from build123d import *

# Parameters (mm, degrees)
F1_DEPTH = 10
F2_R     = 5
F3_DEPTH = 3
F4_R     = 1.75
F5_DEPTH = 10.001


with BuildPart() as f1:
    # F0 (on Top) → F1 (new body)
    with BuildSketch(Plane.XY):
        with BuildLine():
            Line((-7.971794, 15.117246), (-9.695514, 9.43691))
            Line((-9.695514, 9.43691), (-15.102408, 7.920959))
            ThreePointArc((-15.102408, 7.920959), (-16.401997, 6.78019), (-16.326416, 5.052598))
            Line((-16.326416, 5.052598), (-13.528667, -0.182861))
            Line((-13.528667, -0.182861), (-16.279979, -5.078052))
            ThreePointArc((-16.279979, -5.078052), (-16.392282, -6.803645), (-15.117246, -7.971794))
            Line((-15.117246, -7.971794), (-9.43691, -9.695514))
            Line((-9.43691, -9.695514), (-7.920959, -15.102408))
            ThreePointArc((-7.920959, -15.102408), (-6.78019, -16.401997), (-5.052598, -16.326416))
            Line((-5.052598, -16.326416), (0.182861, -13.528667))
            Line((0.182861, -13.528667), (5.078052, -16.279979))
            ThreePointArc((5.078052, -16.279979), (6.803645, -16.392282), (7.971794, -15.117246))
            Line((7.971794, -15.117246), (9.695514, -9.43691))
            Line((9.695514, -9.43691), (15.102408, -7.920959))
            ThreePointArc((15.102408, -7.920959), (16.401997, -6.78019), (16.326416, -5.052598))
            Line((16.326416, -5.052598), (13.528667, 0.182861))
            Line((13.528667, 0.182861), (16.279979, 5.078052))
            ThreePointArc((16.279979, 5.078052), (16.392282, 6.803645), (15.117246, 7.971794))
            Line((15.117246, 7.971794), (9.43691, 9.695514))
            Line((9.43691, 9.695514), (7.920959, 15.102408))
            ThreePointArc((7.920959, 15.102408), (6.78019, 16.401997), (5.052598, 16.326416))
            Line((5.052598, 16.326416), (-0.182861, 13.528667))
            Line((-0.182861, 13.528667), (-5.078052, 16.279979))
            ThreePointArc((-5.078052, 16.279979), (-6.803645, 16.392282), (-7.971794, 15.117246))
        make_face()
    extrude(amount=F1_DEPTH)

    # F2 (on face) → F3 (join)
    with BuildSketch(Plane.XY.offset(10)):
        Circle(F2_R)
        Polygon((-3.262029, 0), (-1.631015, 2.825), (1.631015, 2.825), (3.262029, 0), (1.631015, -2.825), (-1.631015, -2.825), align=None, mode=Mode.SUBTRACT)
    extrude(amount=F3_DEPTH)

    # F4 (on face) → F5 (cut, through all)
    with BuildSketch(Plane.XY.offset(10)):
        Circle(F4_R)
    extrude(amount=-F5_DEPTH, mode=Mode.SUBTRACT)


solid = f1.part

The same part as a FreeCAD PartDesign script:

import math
import FreeCAD as App
import Part
import Sketcher
from FreeCAD import Vector
Q = App.Units.Quantity

doc = App.newDocument("Part")
params = doc.addObject("Spreadsheet::Sheet", "Params")
for row, (alias, value) in enumerate([
    ("sketch1_radius", "2 mm"),
    ("pad1_length", "10 mm"),
    ("sketch2_diameter", "10 mm"),
    ("pad2_length", "3 mm"),
    ("sketch3_diameter", "3.5 mm"),
], start=1):
    params.set(f"A{row}", alias)
    params.set(f"B{row}", "=" + value)
    params.setAlias(f"B{row}", alias)

body = doc.addObject("PartDesign::Body", "Body")

# Sketch on XY plane
sketch1 = doc.addObject("Sketcher::SketchObject", "Sketch")
body.addObject(sketch1)
sketch1.AttachmentSupport = (doc.XY_Plane, [""])
sketch1.MapMode = "FlatFace"
sketch1.addGeometry(Part.LineSegment(Vector(-8, 15.1, 0), Vector(-9.7, 9.4, 0)), False)
sketch1.addGeometry(Part.LineSegment(Vector(-9.7, 9.4, 0), Vector(-15.1, 7.9, 0)), False)
sketch1.addGeometry(Part.ArcOfCircle(Part.Circle(Vector(-14.6, 6, 0), Vector(0, 0, 1), 2), math.radians(106), math.radians(208)), False)
sketch1.addGeometry(Part.LineSegment(Vector(-16.3, 5.1, 0), Vector(-13.5, -0.2, 0)), False)
sketch1.addGeometry(Part.LineSegment(Vector(-13.5, -0.2, 0), Vector(-16.3, -5.1, 0)), False)
sketch1.addGeometry(Part.ArcOfCircle(Part.Circle(Vector(-14.5, -6.1, 0), Vector(0, 0, 1), 2), math.radians(151), math.radians(253)), False)
sketch1.addGeometry(Part.LineSegment(Vector(-15.1, -8, 0), Vector(-9.4, -9.7, 0)), False)
sketch1.addGeometry(Part.LineSegment(Vector(-9.4, -9.7, 0), Vector(-7.9, -15.1, 0)), False)
sketch1.addGeometry(Part.ArcOfCircle(Part.Circle(Vector(-6, -14.6, 0), Vector(0, 0, 1), 2), math.radians(-164), math.radians(-62)), False)
sketch1.addGeometry(Part.LineSegment(Vector(-5.1, -16.3, 0), Vector(0.2, -13.5, 0)), False)
sketch1.addGeometry(Part.LineSegment(Vector(0.2, -13.5, 0), Vector(5.1, -16.3, 0)), False)
sketch1.addGeometry(Part.ArcOfCircle(Part.Circle(Vector(6.1, -14.5, 0), Vector(0, 0, 1), 2), math.radians(-119), math.radians(-17)), False)
sketch1.addGeometry(Part.LineSegment(Vector(8, -15.1, 0), Vector(9.7, -9.4, 0)), False)
sketch1.addGeometry(Part.LineSegment(Vector(9.7, -9.4, 0), Vector(15.1, -7.9, 0)), False)
sketch1.addGeometry(Part.ArcOfCircle(Part.Circle(Vector(14.6, -6, 0), Vector(0, 0, 1), 2), math.radians(-74), math.radians(28)), False)
sketch1.addGeometry(Part.LineSegment(Vector(16.3, -5.1, 0), Vector(13.5, 0.2, 0)), False)
sketch1.addGeometry(Part.LineSegment(Vector(13.5, 0.2, 0), Vector(16.3, 5.1, 0)), False)
sketch1.addGeometry(Part.ArcOfCircle(Part.Circle(Vector(14.5, 6.1, 0), Vector(0, 0, 1), 2), math.radians(-29), math.radians(73)), False)
sketch1.addGeometry(Part.LineSegment(Vector(15.1, 8, 0), Vector(9.4, 9.7, 0)), False)
sketch1.addGeometry(Part.LineSegment(Vector(9.4, 9.7, 0), Vector(7.9, 15.1, 0)), False)
sketch1.addGeometry(Part.ArcOfCircle(Part.Circle(Vector(6, 14.6, 0), Vector(0, 0, 1), 2), math.radians(16), math.radians(118)), False)
sketch1.addGeometry(Part.LineSegment(Vector(5.1, 16.3, 0), Vector(-0.2, 13.5, 0)), False)
sketch1.addGeometry(Part.LineSegment(Vector(-0.2, 13.5, 0), Vector(-5.1, 16.3, 0)), False)
sketch1.addGeometry(Part.ArcOfCircle(Part.Circle(Vector(-6.1, 14.5, 0), Vector(0, 0, 1), 2), math.radians(61), math.radians(163)), False)
sketch1.addConstraint(Sketcher.Constraint("Coincident", 0, 2, 1, 1))
sketch1.addConstraint(Sketcher.Constraint("Tangent", 1, 2, 2, 1))
sketch1.addConstraint(Sketcher.Constraint("Tangent", 2, 2, 3, 1))
sketch1.addConstraint(Sketcher.Constraint("Coincident", 3, 2, 4, 1))
sketch1.addConstraint(Sketcher.Constraint("Tangent", 4, 2, 5, 1))
sketch1.addConstraint(Sketcher.Constraint("Tangent", 5, 2, 6, 1))
sketch1.addConstraint(Sketcher.Constraint("Coincident", 6, 2, 7, 1))
sketch1.addConstraint(Sketcher.Constraint("Tangent", 7, 2, 8, 1))
sketch1.addConstraint(Sketcher.Constraint("Tangent", 8, 2, 9, 1))
sketch1.addConstraint(Sketcher.Constraint("Coincident", 9, 2, 10, 1))
sketch1.addConstraint(Sketcher.Constraint("Tangent", 10, 2, 11, 1))
sketch1.addConstraint(Sketcher.Constraint("Tangent", 11, 2, 12, 1))
sketch1.addConstraint(Sketcher.Constraint("Coincident", 12, 2, 13, 1))
sketch1.addConstraint(Sketcher.Constraint("Tangent", 13, 2, 14, 1))
sketch1.addConstraint(Sketcher.Constraint("Tangent", 14, 2, 15, 1))
sketch1.addConstraint(Sketcher.Constraint("Coincident", 15, 2, 16, 1))
sketch1.addConstraint(Sketcher.Constraint("Tangent", 16, 2, 17, 1))
sketch1.addConstraint(Sketcher.Constraint("Tangent", 17, 2, 18, 1))
sketch1.addConstraint(Sketcher.Constraint("Coincident", 18, 2, 19, 1))
sketch1.addConstraint(Sketcher.Constraint("Tangent", 19, 2, 20, 1))
sketch1.addConstraint(Sketcher.Constraint("Tangent", 20, 2, 21, 1))
sketch1.addConstraint(Sketcher.Constraint("Coincident", 21, 2, 22, 1))
sketch1.addConstraint(Sketcher.Constraint("Tangent", 22, 2, 23, 1))
sketch1.addConstraint(Sketcher.Constraint("Tangent", 23, 2, 0, 1))
sketch1.addConstraint(Sketcher.Constraint("Equal", 2, 5))
sketch1.addConstraint(Sketcher.Constraint("Equal", 5, 8))
sketch1.addConstraint(Sketcher.Constraint("Equal", 8, 11))
sketch1.addConstraint(Sketcher.Constraint("Equal", 11, 14))
sketch1.addConstraint(Sketcher.Constraint("Equal", 14, 17))
sketch1.addConstraint(Sketcher.Constraint("Equal", 17, 20))
sketch1.addConstraint(Sketcher.Constraint("Equal", 20, 23))
sketch1.addConstraint(Sketcher.Constraint("Symmetric", 2, 3, 14, 3, -1, 1))
sketch1.addConstraint(Sketcher.Constraint("Symmetric", 5, 3, 17, 3, -1, 1))
sketch1.addConstraint(Sketcher.Constraint("Symmetric", 8, 3, 20, 3, -1, 1))
sketch1.addConstraint(Sketcher.Constraint("Symmetric", 11, 3, 23, 3, -1, 1))
sketch1.addConstraint(Sketcher.Constraint("Symmetric", 0, 2, 12, 2, -1, 1))
sketch1.addConstraint(Sketcher.Constraint("Symmetric", 3, 2, 15, 2, -1, 1))
sketch1.addConstraint(Sketcher.Constraint("Symmetric", 6, 2, 18, 2, -1, 1))
sketch1.addConstraint(Sketcher.Constraint("Symmetric", 9, 2, 21, 2, -1, 1))
sketch1.addConstraint(Sketcher.Constraint("Perpendicular", 0, 6))
sketch1.addConstraint(Sketcher.Constraint("Perpendicular", 1, 7))
sketch1.addConstraint(Sketcher.Constraint("Perpendicular", 3, 9))
sketch1.addConstraint(Sketcher.Constraint("Perpendicular", 4, 10))
sketch1.addConstraint(Sketcher.Constraint("Equal", 0, 3))
sketch1.addConstraint(Sketcher.Constraint("Equal", 1, 4))
sketch1.addConstraint(Sketcher.Constraint("Equal", 3, 6))
sketch1.addConstraint(Sketcher.Constraint("Equal", 4, 7))
sketch1.addConstraint(Sketcher.Constraint("Equal", 6, 9))
sketch1.addConstraint(Sketcher.Constraint("Equal", 7, 10))
sketch1.addConstraint(Sketcher.Constraint("Radius", 2, 2.0))
sketch1.addConstraint(Sketcher.Constraint("DistanceY", 8, 3, 2, 3, 20.5577))
sketch1.addConstraint(Sketcher.Constraint("Distance", 1, 5.61539))
sketch1.addConstraint(Sketcher.Constraint("DistanceX", 2, 3, -1, 1, 14.562481))
sketch1.addConstraint(Sketcher.Constraint("DistanceX", 5, 3, -1, 1, 14.536489))
sketch1.addConstraint(Sketcher.Constraint("DistanceY", 5, 3, -1, 1, 6.057971))
sketch1.addConstraint(Sketcher.Constraint("DistanceY", -1, 1, 0, 2, 9.43691))
sketch1.setExpression("Constraints[49]", "Params.sketch1_radius")
pad1 = doc.addObject("PartDesign::Pad", "Pad")
body.addObject(pad1)
pad1.Profile = sketch1
pad1.setExpression("Length", "Params.pad1_length")

# Sketch on XY plane
sketch2 = doc.addObject("Sketcher::SketchObject", "Sketch001")
body.addObject(sketch2)
sketch2.AttachmentSupport = (doc.XY_Plane, [""])
sketch2.MapMode = "FlatFace"
sketch2.AttachmentOffset = App.Placement(Vector(0, 0, 10), App.Rotation())
sketch2.addGeometry(Part.Circle(Vector(0, 0, 0), Vector(0, 0, 1), 5), False)
sketch2.addGeometry(Part.LineSegment(Vector(-1.6, -2.8, 0), Vector(-3.3, 0, 0)), False)
sketch2.addGeometry(Part.LineSegment(Vector(-3.3, 0, 0), Vector(-1.6, 2.8, 0)), False)
sketch2.addGeometry(Part.LineSegment(Vector(-1.6, 2.8, 0), Vector(1.6, 2.8, 0)), False)
sketch2.addGeometry(Part.LineSegment(Vector(1.6, 2.8, 0), Vector(3.3, 0, 0)), False)
sketch2.addGeometry(Part.LineSegment(Vector(3.3, 0, 0), Vector(1.6, -2.8, 0)), False)
sketch2.addGeometry(Part.LineSegment(Vector(1.6, -2.8, 0), Vector(-1.6, -2.8, 0)), False)
sketch2.addConstraint(Sketcher.Constraint("Coincident", 1, 2, 2, 1))
sketch2.addConstraint(Sketcher.Constraint("Coincident", 2, 2, 3, 1))
sketch2.addConstraint(Sketcher.Constraint("Coincident", 3, 2, 4, 1))
sketch2.addConstraint(Sketcher.Constraint("Coincident", 4, 2, 5, 1))
sketch2.addConstraint(Sketcher.Constraint("Coincident", 5, 2, 6, 1))
sketch2.addConstraint(Sketcher.Constraint("Coincident", 6, 2, 1, 1))
sketch2.addConstraint(Sketcher.Constraint("Horizontal", 3))
sketch2.addConstraint(Sketcher.Constraint("Horizontal", 6))
sketch2.addConstraint(Sketcher.Constraint("Coincident", 0, 3, -1, 1))
sketch2.addConstraint(Sketcher.Constraint("Symmetric", 1, 2, 4, 2, -1, 1))
sketch2.addConstraint(Sketcher.Constraint("Symmetric", 2, 2, 5, 2, -1, 1))
sketch2.addConstraint(Sketcher.Constraint("PointOnObject", 1, 2, -1))
sketch2.addConstraint(Sketcher.Constraint("Parallel", 1, 4))
sketch2.addConstraint(Sketcher.Constraint("Vertical", 3, 2, 5, 2))
sketch2.addConstraint(Sketcher.Constraint("Diameter", 0, 10.0))
sketch2.addConstraint(Sketcher.Constraint("Angle", 1, Q("119.999992 deg")))
sketch2.addConstraint(Sketcher.Constraint("DistanceY", 5, 2, 3, 2, 5.65))
sketch2.addConstraint(Sketcher.Constraint("DistanceX", 3, 1, 3, 2, 3.26203))
sketch2.setExpression("Constraints[14]", "Params.sketch2_diameter")
pad2 = doc.addObject("PartDesign::Pad", "Pad001")
body.addObject(pad2)
pad2.Profile = sketch2
pad2.setExpression("Length", "Params.pad2_length")

# Sketch on XY plane
sketch3 = doc.addObject("Sketcher::SketchObject", "Sketch002")
body.addObject(sketch3)
sketch3.AttachmentSupport = (doc.XY_Plane, [""])
sketch3.MapMode = "FlatFace"
sketch3.AttachmentOffset = App.Placement(Vector(0, 0, 10), App.Rotation())
sketch3.addGeometry(Part.Circle(Vector(0, 0, 0), Vector(0, 0, 1), 1.8), False)
sketch3.addConstraint(Sketcher.Constraint("Coincident", 0, 3, -1, 1))
sketch3.addConstraint(Sketcher.Constraint("Diameter", 0, 3.5))
sketch3.setExpression("Constraints[1]", "Params.sketch3_diameter")
pocket1 = doc.addObject("PartDesign::Pocket", "Pocket")
body.addObject(pocket1)
pocket1.Profile = sketch3
pocket1.Type = "ThroughAll"

doc.recompute()
